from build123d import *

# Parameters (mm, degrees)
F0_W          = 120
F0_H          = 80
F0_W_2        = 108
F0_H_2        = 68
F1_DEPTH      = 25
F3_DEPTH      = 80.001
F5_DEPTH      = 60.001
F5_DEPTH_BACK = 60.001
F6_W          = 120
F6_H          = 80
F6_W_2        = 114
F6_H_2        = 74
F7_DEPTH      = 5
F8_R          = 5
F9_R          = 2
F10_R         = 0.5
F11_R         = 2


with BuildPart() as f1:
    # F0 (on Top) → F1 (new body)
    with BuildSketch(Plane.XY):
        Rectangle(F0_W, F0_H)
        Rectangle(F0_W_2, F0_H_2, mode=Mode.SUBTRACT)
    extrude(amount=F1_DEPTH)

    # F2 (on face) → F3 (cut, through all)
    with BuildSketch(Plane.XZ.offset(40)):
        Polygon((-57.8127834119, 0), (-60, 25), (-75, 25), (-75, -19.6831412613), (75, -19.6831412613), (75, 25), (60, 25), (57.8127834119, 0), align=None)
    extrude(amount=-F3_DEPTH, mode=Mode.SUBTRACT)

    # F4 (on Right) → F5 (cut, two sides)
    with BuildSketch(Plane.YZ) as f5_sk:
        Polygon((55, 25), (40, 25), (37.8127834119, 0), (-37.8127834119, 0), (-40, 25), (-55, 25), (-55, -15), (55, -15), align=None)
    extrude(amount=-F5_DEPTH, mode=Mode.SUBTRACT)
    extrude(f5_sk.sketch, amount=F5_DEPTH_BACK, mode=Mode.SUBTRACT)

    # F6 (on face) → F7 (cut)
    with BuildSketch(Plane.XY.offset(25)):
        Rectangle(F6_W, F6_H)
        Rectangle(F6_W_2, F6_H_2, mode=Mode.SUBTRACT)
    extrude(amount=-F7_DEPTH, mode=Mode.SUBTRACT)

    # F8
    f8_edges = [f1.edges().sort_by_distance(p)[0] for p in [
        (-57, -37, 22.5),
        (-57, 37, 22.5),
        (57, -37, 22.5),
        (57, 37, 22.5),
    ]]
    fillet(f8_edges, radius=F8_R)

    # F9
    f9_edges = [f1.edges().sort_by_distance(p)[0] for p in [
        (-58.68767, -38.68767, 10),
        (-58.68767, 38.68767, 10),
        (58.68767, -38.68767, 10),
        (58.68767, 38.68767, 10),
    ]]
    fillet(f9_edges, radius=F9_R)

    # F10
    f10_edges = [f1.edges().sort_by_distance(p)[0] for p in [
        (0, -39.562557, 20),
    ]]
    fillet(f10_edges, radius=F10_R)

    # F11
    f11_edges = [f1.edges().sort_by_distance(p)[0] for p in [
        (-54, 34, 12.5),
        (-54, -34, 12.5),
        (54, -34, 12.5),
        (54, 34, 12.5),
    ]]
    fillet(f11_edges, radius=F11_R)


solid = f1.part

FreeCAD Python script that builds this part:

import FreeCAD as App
import Part
import Sketcher
from FreeCAD import Vector
Q = App.Units.Quantity


def edges_at(feature, points):
    """Names of the edges that pass closest to the given points."""
    edges = feature.Shape.Edges
    near = lambda p: min(range(len(edges)), key=lambda i: edges[i].distToShape(Part.Vertex(*p))[0])
    return sorted({f"Edge{near(p) + 1}" for p in points})


def add_polygon(sketch, points):
    """Adds a closed chain of lines whose ends are joined by coincident constraints."""
    first, n = sketch.GeometryCount, len(points)
    for a, b in zip(points, points[1:] + points[:1]):
        sketch.addGeometry(Part.LineSegment(App.Vector(*a, 0), App.Vector(*b, 0)), False)
    for i in range(n):
        sketch.addConstraint(Sketcher.Constraint("Coincident", first + i, 2, first + (i + 1) % n, 1))

doc = App.newDocument("Part")
body = doc.addObject("PartDesign::Body", "Body")

sketch1 = body.newObject("Sketcher::SketchObject", "Sketch")
sketch1.AttachmentSupport = (doc.getObject("XY_Plane"), [""])
sketch1.MapMode = "FlatFace"
add_polygon(sketch1, [(-60, 40), (-60, -40), (60, -40), (60, 40)])
add_polygon(sketch1, [(54, -34), (-54, -34), (-54, 34), (54, 34)])
sketch1.addConstraint([
    Sketcher.Constraint("Vertical", 0),
    Sketcher.Constraint("Horizontal", 1),
    Sketcher.Constraint("Vertical", 2),
    Sketcher.Constraint("Horizontal", 3),
    Sketcher.Constraint("Horizontal", 4),
    Sketcher.Constraint("Vertical", 5),
    Sketcher.Constraint("Horizontal", 6),
    Sketcher.Constraint("Vertical", 7),
    Sketcher.Constraint("Symmetric", 0, 2, 2, 2, -1, 1),
    Sketcher.Constraint("Symmetric", 4, 2, 6, 2, -1, 1),
    Sketcher.Constraint("DistanceX", 1, 1, 1, 2, 120.0),
    Sketcher.Constraint("DistanceX", 4, 2, 4, 1, 108.0),
    Sketcher.Constraint("DistanceY", 0, 2, 0, 1, 80.0),
    Sketcher.Constraint("DistanceY", 5, 1, 5, 2, 68.0),
])
pad1 = body.newObject("PartDesign::Pad", "Pad")
pad1.Profile = sketch1
pad1.Length = 25

sketch2 = body.newObject("Sketcher::SketchObject", "Sketch001")
sketch2.AttachmentSupport = (doc.getObject("XZ_Plane"), [""])
sketch2.MapMode = "FlatFace"
sketch2.AttachmentOffset = App.Placement(Vector(0, 0, 40), App.Rotation())
add_polygon(sketch2, [(-58, 0), (-60, 25), (-75, 25), (-75, -20), (75, -20), (75, 25), (60, 25), (58, 0)])
sketch2.addConstraint([
    Sketcher.Constraint("Horizontal", 1),
    Sketcher.Constraint("Vertical", 2),
    Sketcher.Constraint("Horizontal", 3),
    Sketcher.Constraint("Vertical", 4),
    Sketcher.Constraint("Horizontal", 5),
    Sketcher.Constraint("Horizontal", 7),
    Sketcher.Constraint("Symmetric", 6, 2, 7, 2, -1, 1),
    Sketcher.Constraint("Symmetric", 1, 2, 4, 2, -2),
    Sketcher.Constraint("Equal", 1, 5),
    Sketcher.Constraint("DistanceX", 1, 2, 1, 1, 15.0),
    Sketcher.Constraint("DistanceX", 3, 1, 3, 2, 150.0),
    Sketcher.Constraint("Angle", 0, Q("95 deg")),
    Sketcher.Constraint("DistanceY", -1, 1, 0, 2, 25.0),
    Sketcher.Constraint("DistanceY", 2, 2, 2, 1, 44.683141),
])
pocket1 = body.newObject("PartDesign::Pocket", "Pocket")
pocket1.Profile = sketch2
pocket1.Type = "ThroughAll"

sketch3 = body.newObject("Sketcher::SketchObject", "Sketch002")
sketch3.AttachmentSupport = (doc.getObject("YZ_Plane"), [""])
sketch3.MapMode = "FlatFace"
add_polygon(sketch3, [(55, 25), (40, 25), (38, 0), (-38, 0), (-40, 25), (-55, 25), (-55, -15), (55, -15)])
sketch3.addConstraint([
    Sketcher.Constraint("Horizontal", 0),
    Sketcher.Constraint("Horizontal", 2),
    Sketcher.Constraint("Horizontal", 4),
    Sketcher.Constraint("Vertical", 5),
    Sketcher.Constraint("Horizontal", 6),
    Sketcher.Constraint("Vertical", 7),
    Sketcher.Constraint("Symmetric", 1, 2, 2, 2, -1, 1),
    Sketcher.Constraint("Symmetric", 0, 2, 3, 2, -2),
    Sketcher.Constraint("Equal", 0, 4),
    Sketcher.Constraint("DistanceX", 0, 2, 0, 1, 15.0),
    Sketcher.Constraint("DistanceX", 6, 1, 6, 2, 110.0),
    Sketcher.Constraint("DistanceY", 5, 2, 5, 1, 40.0),
    Sketcher.Constraint("Angle", 1, Q("-95 deg")),
    Sketcher.Constraint("DistanceY", -1, 1, 0, 2, 25.0),
])
pocket2 = body.newObject("PartDesign::Pocket", "Pocket001")
pocket2.Profile = sketch3
pocket2.Type = "ThroughAll"
pocket2.Midplane = True

sketch4 = body.newObject("Sketcher::SketchObject", "Sketch003")
sketch4.AttachmentSupport = (doc.getObject("XY_Plane"), [""])
sketch4.MapMode = "FlatFace"
sketch4.AttachmentOffset = App.Placement(Vector(0, 0, 25), App.Rotation())
add_polygon(sketch4, [(-60, 40), (-60, -40), (60, -40), (60, 40)])
add_polygon(sketch4, [(57, -37), (-57, -37), (-57, 37), (57, 37)])
sketch4.addConstraint([
    Sketcher.Constraint("Vertical", 0),
    Sketcher.Constraint("Horizontal", 1),
    Sketcher.Constraint("Vertical", 2),
    Sketcher.Constraint("Horizontal", 3),
    Sketcher.Constraint("Horizontal", 4),
    Sketcher.Constraint("Vertical", 5),
    Sketcher.Constraint("Horizontal", 6),
    Sketcher.Constraint("Vertical", 7),
    Sketcher.Constraint("Symmetric", 0, 2, 2, 2, -1, 1),
    Sketcher.Constraint("Symmetric", 4, 2, 6, 2, -1, 1),
    Sketcher.Constraint("DistanceX", 1, 1, 1, 2, 120.0),
    Sketcher.Constraint("DistanceX", 4, 2, 4, 1, 114.0),
    Sketcher.Constraint("DistanceY", 0, 2, 0, 1, 80.0),
    Sketcher.Constraint("DistanceY", 5, 1, 5, 2, 74.0),
])
pocket3 = body.newObject("PartDesign::Pocket", "Pocket002")
pocket3.Profile = sketch4
pocket3.Length = 5
doc.recompute()

fillet = body.newObject("PartDesign::Fillet", "Fillet")
fillet.Base = (pocket3, edges_at(pocket3, [
    (-57, -37, 22.5),
    (-57, 37, 22.5),
    (57, -37, 22.5),
    (57, 37, 22.5),
]))
fillet.Radius = 5
doc.recompute()

fillet2 = body.newObject("PartDesign::Fillet", "Fillet001")
fillet2.Base = (fillet, edges_at(fillet, [
    (-58.688, -38.688, 10),
    (-58.688, 38.688, 10),
    (58.688, -38.688, 10),
    (58.688, 38.688, 10),
]))
fillet2.Radius = 2
doc.recompute()

fillet3 = body.newObject("PartDesign::Fillet", "Fillet002")
fillet3.Base = (fillet2, edges_at(fillet2, [(0, -39.563, 20)]))
fillet3.Radius = 0.5
doc.recompute()

fillet4 = body.newObject("PartDesign::Fillet", "Fillet003")
fillet4.Base = (fillet3, edges_at(fillet3, [
    (-54, 34, 12.5),
    (-54, -34, 12.5),
    (54, -34, 12.5),
    (54, 34, 12.5),
]))
fillet4.Radius = 2

doc.recompute()
